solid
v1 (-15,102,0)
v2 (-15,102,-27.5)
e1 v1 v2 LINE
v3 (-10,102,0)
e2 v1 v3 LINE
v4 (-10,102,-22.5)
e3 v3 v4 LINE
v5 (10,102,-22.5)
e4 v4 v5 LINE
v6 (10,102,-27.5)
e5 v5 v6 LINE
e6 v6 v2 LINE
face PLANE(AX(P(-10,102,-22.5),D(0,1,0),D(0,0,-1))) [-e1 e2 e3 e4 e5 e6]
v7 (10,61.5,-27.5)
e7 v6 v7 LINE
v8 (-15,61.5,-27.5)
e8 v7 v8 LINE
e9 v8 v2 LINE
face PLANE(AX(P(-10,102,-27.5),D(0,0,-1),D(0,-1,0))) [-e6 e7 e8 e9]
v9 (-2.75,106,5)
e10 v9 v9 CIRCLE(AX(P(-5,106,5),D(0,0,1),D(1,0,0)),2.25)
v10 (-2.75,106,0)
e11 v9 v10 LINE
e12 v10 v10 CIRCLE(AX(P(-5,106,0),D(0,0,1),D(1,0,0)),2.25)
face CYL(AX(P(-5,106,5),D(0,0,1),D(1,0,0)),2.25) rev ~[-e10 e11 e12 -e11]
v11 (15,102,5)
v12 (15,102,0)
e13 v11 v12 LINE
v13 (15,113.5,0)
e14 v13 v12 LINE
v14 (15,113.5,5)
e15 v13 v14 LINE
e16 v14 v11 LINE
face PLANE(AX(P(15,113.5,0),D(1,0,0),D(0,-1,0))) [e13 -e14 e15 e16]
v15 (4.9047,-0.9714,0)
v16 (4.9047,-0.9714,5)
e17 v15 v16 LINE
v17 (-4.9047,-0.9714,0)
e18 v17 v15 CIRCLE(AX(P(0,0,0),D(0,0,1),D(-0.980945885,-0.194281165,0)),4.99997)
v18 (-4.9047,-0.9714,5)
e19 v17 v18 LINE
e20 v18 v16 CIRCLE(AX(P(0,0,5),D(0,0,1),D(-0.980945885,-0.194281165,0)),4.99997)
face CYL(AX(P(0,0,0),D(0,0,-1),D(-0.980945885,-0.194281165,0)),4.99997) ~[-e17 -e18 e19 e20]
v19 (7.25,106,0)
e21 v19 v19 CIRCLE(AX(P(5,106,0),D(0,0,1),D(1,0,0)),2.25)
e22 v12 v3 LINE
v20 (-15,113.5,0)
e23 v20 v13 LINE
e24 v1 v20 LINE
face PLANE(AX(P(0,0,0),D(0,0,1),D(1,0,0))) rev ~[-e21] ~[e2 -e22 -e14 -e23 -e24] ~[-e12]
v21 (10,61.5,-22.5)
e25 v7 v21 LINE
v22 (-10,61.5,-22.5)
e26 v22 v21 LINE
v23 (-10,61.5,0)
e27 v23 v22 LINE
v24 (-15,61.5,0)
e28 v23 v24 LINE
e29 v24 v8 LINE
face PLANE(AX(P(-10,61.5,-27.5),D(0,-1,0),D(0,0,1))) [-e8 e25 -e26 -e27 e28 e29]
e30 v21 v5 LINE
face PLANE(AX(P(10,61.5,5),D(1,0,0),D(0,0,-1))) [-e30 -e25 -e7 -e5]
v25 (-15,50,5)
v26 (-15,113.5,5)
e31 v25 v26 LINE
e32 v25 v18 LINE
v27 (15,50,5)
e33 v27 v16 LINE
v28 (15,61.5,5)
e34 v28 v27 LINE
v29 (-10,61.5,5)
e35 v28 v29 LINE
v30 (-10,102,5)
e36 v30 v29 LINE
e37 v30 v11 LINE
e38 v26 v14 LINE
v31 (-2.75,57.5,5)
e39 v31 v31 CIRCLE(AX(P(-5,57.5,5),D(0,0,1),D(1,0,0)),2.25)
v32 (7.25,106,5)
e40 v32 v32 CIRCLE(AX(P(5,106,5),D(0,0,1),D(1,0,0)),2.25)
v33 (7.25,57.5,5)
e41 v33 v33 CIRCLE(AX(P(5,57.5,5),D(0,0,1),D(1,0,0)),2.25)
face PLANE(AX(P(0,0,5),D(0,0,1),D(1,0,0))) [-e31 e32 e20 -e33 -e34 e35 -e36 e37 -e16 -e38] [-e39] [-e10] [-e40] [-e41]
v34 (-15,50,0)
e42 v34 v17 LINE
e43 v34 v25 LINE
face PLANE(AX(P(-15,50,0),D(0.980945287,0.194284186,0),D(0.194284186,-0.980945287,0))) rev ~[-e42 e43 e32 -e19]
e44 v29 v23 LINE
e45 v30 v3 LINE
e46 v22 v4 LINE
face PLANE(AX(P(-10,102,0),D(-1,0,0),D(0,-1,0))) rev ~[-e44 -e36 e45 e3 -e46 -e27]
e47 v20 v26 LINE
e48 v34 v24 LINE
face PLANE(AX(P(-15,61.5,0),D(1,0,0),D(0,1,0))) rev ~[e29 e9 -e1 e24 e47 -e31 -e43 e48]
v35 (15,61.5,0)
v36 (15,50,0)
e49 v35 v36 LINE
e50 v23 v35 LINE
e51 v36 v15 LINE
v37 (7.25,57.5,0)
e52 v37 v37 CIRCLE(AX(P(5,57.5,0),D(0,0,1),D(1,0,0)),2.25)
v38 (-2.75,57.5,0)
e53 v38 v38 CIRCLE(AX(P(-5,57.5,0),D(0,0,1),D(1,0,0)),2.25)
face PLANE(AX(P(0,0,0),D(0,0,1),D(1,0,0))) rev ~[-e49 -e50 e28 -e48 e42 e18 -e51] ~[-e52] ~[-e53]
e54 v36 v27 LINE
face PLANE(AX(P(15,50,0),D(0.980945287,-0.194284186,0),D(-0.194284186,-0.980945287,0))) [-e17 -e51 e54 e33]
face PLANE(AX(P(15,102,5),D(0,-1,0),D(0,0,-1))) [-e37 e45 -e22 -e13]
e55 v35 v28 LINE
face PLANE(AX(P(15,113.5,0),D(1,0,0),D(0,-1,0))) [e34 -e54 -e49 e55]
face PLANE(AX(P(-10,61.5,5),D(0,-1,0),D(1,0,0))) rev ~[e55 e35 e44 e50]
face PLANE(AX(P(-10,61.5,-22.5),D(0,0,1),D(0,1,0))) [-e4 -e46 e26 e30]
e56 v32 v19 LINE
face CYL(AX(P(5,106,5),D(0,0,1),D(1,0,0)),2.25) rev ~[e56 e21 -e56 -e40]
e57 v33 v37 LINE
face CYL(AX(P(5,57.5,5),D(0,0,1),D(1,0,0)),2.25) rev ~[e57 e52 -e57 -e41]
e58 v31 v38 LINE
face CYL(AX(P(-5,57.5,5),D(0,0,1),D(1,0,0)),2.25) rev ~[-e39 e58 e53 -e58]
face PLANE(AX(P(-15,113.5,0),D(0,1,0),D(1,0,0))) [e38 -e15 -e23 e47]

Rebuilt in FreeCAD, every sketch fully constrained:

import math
import FreeCAD as App
import Part
import Sketcher

doc = App.newDocument("Part")
body = doc.addObject("PartDesign::Body", "Body")

# Sketch on XY plane
sketch1 = doc.addObject("Sketcher::SketchObject", "Sketch")
body.addObject(sketch1)
sketch1.AttachmentSupport = (doc.XY_Plane, [""])
sketch1.MapMode = "FlatFace"
sketch1.addGeometry([
    Part.LineSegment(App.Vector(15, 113.5, 0), App.Vector(-15, 113.5, 0)),  # 0
    Part.LineSegment(App.Vector(-15, 113.5, 0), App.Vector(-15, 50, 0)),  # 1
    Part.LineSegment(App.Vector(-15, 50, 0), App.Vector(-4.9, -1, 0)),  # 2
    Part.ArcOfCircle(Part.Circle(App.Vector(0, 0, 0), App.Vector(0, 0, 1), 5), math.radians(-169), math.radians(-11)),  # 3
    Part.LineSegment(App.Vector(4.9, -1, 0), App.Vector(15, 50, 0)),  # 4
    Part.LineSegment(App.Vector(15, 50, 0), App.Vector(15, 113.5, 0)),  # 5
], False)
sketch1.addConstraint([
    Sketcher.Constraint("Coincident", 0, 2, 1, 1),
    Sketcher.Constraint("Coincident", 1, 2, 2, 1),
    Sketcher.Constraint("Tangent", 2, 2, 3, 1),
    Sketcher.Constraint("Tangent", 3, 2, 4, 1),
    Sketcher.Constraint("Coincident", 4, 2, 5, 1),
    Sketcher.Constraint("Coincident", 5, 2, 0, 1),
    Sketcher.Constraint("Horizontal", 0),
    Sketcher.Constraint("Vertical", 1),
    Sketcher.Constraint("Vertical", 5),
    Sketcher.Constraint("Coincident", 3, 3, -1, 1),
    Sketcher.Constraint("Symmetric", 1, 2, 4, 2, -2),
    Sketcher.Constraint("Radius", 3, 5.0),
    Sketcher.Constraint("DistanceX", 0, 2, 0, 1, 30.0),
    Sketcher.Constraint("DistanceY", 1, 2, 1, 1, 63.5),
    Sketcher.Constraint("DistanceY", -1, 1, 1, 2, 50.0),
])
pad1 = doc.addObject("PartDesign::Pad", "Pad")
body.addObject(pad1)
pad1.Profile = sketch1
pad1.Length = 5

# Sketch on XY plane
sketch2 = doc.addObject("Sketcher::SketchObject", "Sketch001")
body.addObject(sketch2)
sketch2.AttachmentSupport = (doc.XY_Plane, [""])
sketch2.MapMode = "FlatFace"
sketch2.AttachmentOffset = App.Placement(App.Vector(0, 0, 5), App.Rotation())
sketch2.addGeometry([
    Part.Circle(App.Vector(-5, 106, 0), App.Vector(0, 0, 1), 2.2),  # 0
    Part.Circle(App.Vector(5, 106, 0), App.Vector(0, 0, 1), 2.2),  # 1
    Part.Circle(App.Vector(-5, 57.5, 0), App.Vector(0, 0, 1), 2.2),  # 2
    Part.Circle(App.Vector(5, 57.5, 0), App.Vector(0, 0, 1), 2.2),  # 3
    Part.LineSegment(App.Vector(-10, 102, 0), App.Vector(-10, 61.5, 0)),  # 4
    Part.LineSegment(App.Vector(-10, 61.5, 0), App.Vector(10, 61.5, 0)),  # 5
    Part.LineSegment(App.Vector(10, 61.5, 0), App.Vector(10, 102, 0)),  # 6
    Part.LineSegment(App.Vector(10, 102, 0), App.Vector(-10, 102, 0)),  # 7
], False)
sketch2.addConstraint([
    Sketcher.Constraint("Coincident", 4, 2, 5, 1),
    Sketcher.Constraint("Coincident", 5, 2, 6, 1),
    Sketcher.Constraint("Coincident", 6, 2, 7, 1),
    Sketcher.Constraint("Coincident", 7, 2, 4, 1),
    Sketcher.Constraint("Vertical", 4),
    Sketcher.Constraint("Horizontal", 5),
    Sketcher.Constraint("Vertical", 6),
    Sketcher.Constraint("Horizontal", 7),
    Sketcher.Constraint("Equal", 0, 1),
    Sketcher.Constraint("Equal", 1, 2),
    Sketcher.Constraint("Equal", 2, 3),
    Sketcher.Constraint("Symmetric", 0, 3, 1, 3, -2),
    Sketcher.Constraint("Symmetric", 2, 3, 3, 3, -2),
    Sketcher.Constraint("Vertical", 0, 3, 2, 3),
    Sketcher.Constraint("Diameter", 0, 4.5),
    Sketcher.Constraint("DistanceX", 5, 1, 5, 2, 20.0),
    Sketcher.Constraint("DistanceY", 4, 2, 4, 1, 40.5),
    Sketcher.Constraint("DistanceX", 0, 3, -1, 1, 5.0),
    Sketcher.Constraint("DistanceX", 4, 2, 2, 3, 5.0),
    Sketcher.Constraint("DistanceY", -1, 1, 0, 3, 106.0),
    Sketcher.Constraint("DistanceY", -1, 1, 6, 2, 102.0),
    Sketcher.Constraint("DistanceY", 2, 3, 4, 2, 4.0),
])
pocket1 = doc.addObject("PartDesign::Pocket", "Pocket")
body.addObject(pocket1)
pocket1.Profile = sketch2
pocket1.Type = "UpToFirst"

# Sketch on YZ plane
sketch3 = doc.addObject("Sketcher::SketchObject", "Sketch002")
body.addObject(sketch3)
sketch3.AttachmentSupport = (doc.YZ_Plane, [""])
sketch3.MapMode = "FlatFace"
sketch3.AttachmentOffset = App.Placement(App.Vector(0, 0, 15), App.Rotation())
sketch3.addGeometry([
    Part.LineSegment(App.Vector(102, 0, 0), App.Vector(102, 5, 0)),
    Part.LineSegment(App.Vector(102, 5, 0), App.Vector(62, 5, 0)),
    Part.LineSegment(App.Vector(62, 5, 0), App.Vector(62, 0, 0)),
    Part.LineSegment(App.Vector(62, 0, 0), App.Vector(102, 0, 0)),
], False)
sketch3.addConstraint([
    Sketcher.Constraint("Coincident", 0, 2, 1, 1),
    Sketcher.Constraint("Coincident", 1, 2, 2, 1),
    Sketcher.Constraint("Coincident", 2, 2, 3, 1),
    Sketcher.Constraint("Coincident", 3, 2, 0, 1),
    Sketcher.Constraint("Vertical", 0),
    Sketcher.Constraint("Horizontal", 1),
    Sketcher.Constraint("Vertical", 2),
    Sketcher.Constraint("Horizontal", 3),
    Sketcher.Constraint("PointOnObject", 2, 2, -1),
    Sketcher.Constraint("DistanceY", 0, 1, 0, 2, 5.0),
    Sketcher.Constraint("DistanceX", 1, 2, 1, 1, 40.5),
    Sketcher.Constraint("DistanceX", -1, 1, 0, 2, 102.0),
])
pocket2 = doc.addObject("PartDesign::Pocket", "Pocket001")
body.addObject(pocket2)
pocket2.Profile = sketch3
pocket2.Length = 5

# Sketch on XY plane
sketch4 = doc.addObject("Sketcher::SketchObject", "Sketch003")
body.addObject(sketch4)
sketch4.AttachmentSupport = (doc.XY_Plane, [""])
sketch4.MapMode = "FlatFace"
sketch4.addGeometry([
    Part.LineSegment(App.Vector(-15, 62, 0), App.Vector(-15, 102, 0)),
    Part.LineSegment(App.Vector(-15, 102, 0), App.Vector(-10, 102, 0)),
    Part.LineSegment(App.Vector(-10, 102, 0), App.Vector(-10, 62, 0)),
    Part.LineSegment(App.Vector(-10, 62, 0), App.Vector(-15, 62, 0)),
], False)
sketch4.addConstraint([
    Sketcher.Constraint("Coincident", 0, 2, 1, 1),
    Sketcher.Constraint("Coincident", 1, 2, 2, 1),
    Sketcher.Constraint("Coincident", 2, 2, 3, 1),
    Sketcher.Constraint("Coincident", 3, 2, 0, 1),
    Sketcher.Constraint("Vertical", 0),
    Sketcher.Constraint("Horizontal", 1),
    Sketcher.Constraint("Vertical", 2),
    Sketcher.Constraint("Horizontal", 3),
    Sketcher.Constraint("DistanceX", 1, 1, 1, 2, 5.0),
    Sketcher.Constraint("DistanceY", 0, 1, 0, 2, 40.5),
    Sketcher.Constraint("DistanceX", 0, 2, -1, 1, 15.0),
    Sketcher.Constraint("DistanceY", -1, 1, 0, 2, 102.0),
])
pad2 = doc.addObject("PartDesign::Pad", "Pad001")
body.addObject(pad2)
pad2.Profile = sketch4
pad2.Length = 27.5
pad2.Reversed = True

# Sketch on YZ plane
sketch5 = doc.addObject("Sketcher::SketchObject", "Sketch004")
body.addObject(sketch5)
sketch5.AttachmentSupport = (doc.YZ_Plane, [""])
sketch5.MapMode = "FlatFace"
sketch5.AttachmentOffset = App.Placement(App.Vector(0, 0, -10), App.Rotation())
sketch5.addGeometry([
    Part.LineSegment(App.Vector(102, -28, 0), App.Vector(102, -22, 0)),
    Part.LineSegment(App.Vector(102, -22, 0), App.Vector(62, -22, 0)),
    Part.LineSegment(App.Vector(62, -22, 0), App.Vector(62, -28, 0)),
    Part.LineSegment(App.Vector(62, -28, 0), App.Vector(102, -28, 0)),
], False)
sketch5.addConstraint([
    Sketcher.Constraint("Coincident", 0, 2, 1, 1),
    Sketcher.Constraint("Coincident", 1, 2, 2, 1),
    Sketcher.Constraint("Coincident", 2, 2, 3, 1),
    Sketcher.Constraint("Coincident", 3, 2, 0, 1),
    Sketcher.Constraint("Vertical", 0),
    Sketcher.Constraint("Horizontal", 1),
    Sketcher.Constraint("Vertical", 2),
    Sketcher.Constraint("Horizontal", 3),
    Sketcher.Constraint("DistanceY", 0, 1, 0, 2, 5.0),
    Sketcher.Constraint("DistanceX", 1, 2, 1, 1, 40.5),
    Sketcher.Constraint("DistanceX", -1, 1, 0, 2, 102.0),
    Sketcher.Constraint("DistanceY", 0, 2, -1, 1, 22.5),
])
pad3 = doc.addObject("PartDesign::Pad", "Pad002")
body.addObject(pad3)
pad3.Profile = sketch5
pad3.Length = 20

doc.recompute()
